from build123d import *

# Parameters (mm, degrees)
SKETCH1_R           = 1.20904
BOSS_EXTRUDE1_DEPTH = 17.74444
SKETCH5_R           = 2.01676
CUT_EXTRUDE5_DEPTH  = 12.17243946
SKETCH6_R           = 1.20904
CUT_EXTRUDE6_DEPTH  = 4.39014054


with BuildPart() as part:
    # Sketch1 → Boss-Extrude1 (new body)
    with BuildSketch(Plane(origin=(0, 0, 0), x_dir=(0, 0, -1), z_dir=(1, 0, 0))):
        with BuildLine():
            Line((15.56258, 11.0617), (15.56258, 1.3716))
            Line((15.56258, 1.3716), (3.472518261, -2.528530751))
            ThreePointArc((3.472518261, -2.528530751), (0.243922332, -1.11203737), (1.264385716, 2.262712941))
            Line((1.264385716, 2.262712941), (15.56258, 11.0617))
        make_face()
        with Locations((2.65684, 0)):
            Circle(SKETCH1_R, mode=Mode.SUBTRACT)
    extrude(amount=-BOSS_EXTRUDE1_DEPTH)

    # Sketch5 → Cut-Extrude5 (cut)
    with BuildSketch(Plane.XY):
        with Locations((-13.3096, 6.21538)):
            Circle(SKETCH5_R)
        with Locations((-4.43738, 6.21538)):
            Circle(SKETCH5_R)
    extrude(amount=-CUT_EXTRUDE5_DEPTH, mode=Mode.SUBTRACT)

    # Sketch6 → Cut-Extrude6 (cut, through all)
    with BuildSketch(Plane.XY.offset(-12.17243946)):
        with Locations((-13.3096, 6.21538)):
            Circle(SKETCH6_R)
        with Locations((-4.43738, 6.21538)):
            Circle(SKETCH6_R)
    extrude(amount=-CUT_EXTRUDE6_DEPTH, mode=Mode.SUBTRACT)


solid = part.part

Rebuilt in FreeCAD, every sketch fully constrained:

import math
import FreeCAD as App
import Part
import Sketcher
Q = App.Units.Quantity

doc = App.newDocument("Part")
params = doc.addObject("Spreadsheet::Sheet", "Params")
for row, (alias, value) in enumerate([
    ("pad1_length", "17.74444 mm"),
    ("pocket1_length", "12.172439 mm"),
], start=1):
    params.set(f"A{row}", alias)
    params.set(f"B{row}", "=" + value)
    params.setAlias(f"B{row}", alias)

body = doc.addObject("PartDesign::Body", "Body")

sketch1 = body.newObject("Sketcher::SketchObject", "Sketch")
sketch1.AttachmentSupport = (doc.getObject("YZ_Plane"), [""])
sketch1.MapMode = "FlatFace"
sketch1.addGeometry([
    Part.LineSegment(App.Vector(1.3716, -15.56258, 0), App.Vector(11.0617, -15.56258, 0)),
    Part.LineSegment(App.Vector(11.0617, -15.56258, 0), App.Vector(2.262713, -1.264386, 0)),
    Part.ArcOfCircle(Part.Circle(App.Vector(0, -2.65684, 0), App.Vector(0, 0, 1), 2.65684), math.radians(31.607788), math.radians(197.879172)),
    Part.LineSegment(App.Vector(-2.528531, -3.472518, 0), App.Vector(1.3716, -15.56258, 0)),
    Part.Circle(App.Vector(0, -2.65684, 0), App.Vector(0, 0, 1), 1.20904),
], False)
sketch1.addConstraint([
    Sketcher.Constraint("Coincident", 0, 2, 1, 1),
    Sketcher.Constraint("Tangent", 1, 2, 2, 1),
    Sketcher.Constraint("Tangent", 2, 2, 3, 1),
    Sketcher.Constraint("Coincident", 3, 2, 0, 1),
    Sketcher.Constraint("Horizontal", 0),
    Sketcher.Constraint("Coincident", 4, 3, 2, 3),
    Sketcher.Constraint("PointOnObject", 2, 3, -2),
    Sketcher.Constraint("Diameter", 4, Q("2.41808 mm")),
    Sketcher.Constraint("Radius", 2, Q("2.65684 mm")),
    Sketcher.Constraint("DistanceX", 0, 1, 0, 2, Q("9.6901 mm")),
    Sketcher.Constraint("DistanceX", -1, 1, 0, 2, Q("11.0617 mm")),
    Sketcher.Constraint("DistanceY", 2, 3, -1, 1, Q("2.65684 mm")),
    Sketcher.Constraint("DistanceY", 0, 2, -1, 1, Q("15.56258 mm")),
])
pad1 = body.newObject("PartDesign::Pad", "Pad")
pad1.Profile = sketch1
pad1.setExpression("Length", "Params.pad1_length")
pad1.Reversed = True

sketch2 = body.newObject("Sketcher::SketchObject", "Sketch001")
sketch2.AttachmentSupport = (doc.getObject("XY_Plane"), [""])
sketch2.MapMode = "FlatFace"
sketch2.addGeometry([
    Part.Circle(App.Vector(-13.3096, 6.21538, 0), App.Vector(0, 0, 1), 2.01676),
    Part.Circle(App.Vector(-4.43738, 6.21538, 0), App.Vector(0, 0, 1), 2.01676),
], False)
sketch2.addConstraint([
    Sketcher.Constraint("Equal", 0, 1),
    Sketcher.Constraint("Horizontal", 0, 3, 1, 3),
    Sketcher.Constraint("Diameter", 0, Q("4.03352 mm")),
    Sketcher.Constraint("DistanceX", 0, 3, -1, 1, Q("13.3096 mm")),
    Sketcher.Constraint("DistanceY", -1, 1, 0, 3, Q("6.21538 mm")),
    Sketcher.Constraint("DistanceX", 1, 3, -1, 1, Q("4.43738 mm")),
])
pocket1 = body.newObject("PartDesign::Pocket", "Pocket")
pocket1.Profile = sketch2
pocket1.setExpression("Length", "Params.pocket1_length")

sketch3 = body.newObject("Sketcher::SketchObject", "Sketch002")
sketch3.AttachmentSupport = (doc.getObject("XY_Plane"), [""])
sketch3.MapMode = "FlatFace"
sketch3.AttachmentOffset = App.Placement(App.Vector(0, 0, -12.172439), App.Rotation())
sketch3.addGeometry([
    Part.Circle(App.Vector(-13.3096, 6.21538, 0), App.Vector(0, 0, 1), 1.20904),
    Part.Circle(App.Vector(-4.43738, 6.21538, 0), App.Vector(0, 0, 1), 1.20904),
], False)
sketch3.addConstraint([
    Sketcher.Constraint("Equal", 0, 1),
    Sketcher.Constraint("Horizontal", 0, 3, 1, 3),
    Sketcher.Constraint("Diameter", 0, Q("2.41808 mm")),
    Sketcher.Constraint("DistanceX", 0, 3, -1, 1, Q("13.3096 mm")),
    Sketcher.Constraint("DistanceY", -1, 1, 0, 3, Q("6.21538 mm")),
    Sketcher.Constraint("DistanceX", 1, 3, -1, 1, Q("4.43738 mm")),
])
pocket2 = body.newObject("PartDesign::Pocket", "Pocket001")
pocket2.Profile = sketch3
pocket2.Type = "ThroughAll"

doc.recompute()
